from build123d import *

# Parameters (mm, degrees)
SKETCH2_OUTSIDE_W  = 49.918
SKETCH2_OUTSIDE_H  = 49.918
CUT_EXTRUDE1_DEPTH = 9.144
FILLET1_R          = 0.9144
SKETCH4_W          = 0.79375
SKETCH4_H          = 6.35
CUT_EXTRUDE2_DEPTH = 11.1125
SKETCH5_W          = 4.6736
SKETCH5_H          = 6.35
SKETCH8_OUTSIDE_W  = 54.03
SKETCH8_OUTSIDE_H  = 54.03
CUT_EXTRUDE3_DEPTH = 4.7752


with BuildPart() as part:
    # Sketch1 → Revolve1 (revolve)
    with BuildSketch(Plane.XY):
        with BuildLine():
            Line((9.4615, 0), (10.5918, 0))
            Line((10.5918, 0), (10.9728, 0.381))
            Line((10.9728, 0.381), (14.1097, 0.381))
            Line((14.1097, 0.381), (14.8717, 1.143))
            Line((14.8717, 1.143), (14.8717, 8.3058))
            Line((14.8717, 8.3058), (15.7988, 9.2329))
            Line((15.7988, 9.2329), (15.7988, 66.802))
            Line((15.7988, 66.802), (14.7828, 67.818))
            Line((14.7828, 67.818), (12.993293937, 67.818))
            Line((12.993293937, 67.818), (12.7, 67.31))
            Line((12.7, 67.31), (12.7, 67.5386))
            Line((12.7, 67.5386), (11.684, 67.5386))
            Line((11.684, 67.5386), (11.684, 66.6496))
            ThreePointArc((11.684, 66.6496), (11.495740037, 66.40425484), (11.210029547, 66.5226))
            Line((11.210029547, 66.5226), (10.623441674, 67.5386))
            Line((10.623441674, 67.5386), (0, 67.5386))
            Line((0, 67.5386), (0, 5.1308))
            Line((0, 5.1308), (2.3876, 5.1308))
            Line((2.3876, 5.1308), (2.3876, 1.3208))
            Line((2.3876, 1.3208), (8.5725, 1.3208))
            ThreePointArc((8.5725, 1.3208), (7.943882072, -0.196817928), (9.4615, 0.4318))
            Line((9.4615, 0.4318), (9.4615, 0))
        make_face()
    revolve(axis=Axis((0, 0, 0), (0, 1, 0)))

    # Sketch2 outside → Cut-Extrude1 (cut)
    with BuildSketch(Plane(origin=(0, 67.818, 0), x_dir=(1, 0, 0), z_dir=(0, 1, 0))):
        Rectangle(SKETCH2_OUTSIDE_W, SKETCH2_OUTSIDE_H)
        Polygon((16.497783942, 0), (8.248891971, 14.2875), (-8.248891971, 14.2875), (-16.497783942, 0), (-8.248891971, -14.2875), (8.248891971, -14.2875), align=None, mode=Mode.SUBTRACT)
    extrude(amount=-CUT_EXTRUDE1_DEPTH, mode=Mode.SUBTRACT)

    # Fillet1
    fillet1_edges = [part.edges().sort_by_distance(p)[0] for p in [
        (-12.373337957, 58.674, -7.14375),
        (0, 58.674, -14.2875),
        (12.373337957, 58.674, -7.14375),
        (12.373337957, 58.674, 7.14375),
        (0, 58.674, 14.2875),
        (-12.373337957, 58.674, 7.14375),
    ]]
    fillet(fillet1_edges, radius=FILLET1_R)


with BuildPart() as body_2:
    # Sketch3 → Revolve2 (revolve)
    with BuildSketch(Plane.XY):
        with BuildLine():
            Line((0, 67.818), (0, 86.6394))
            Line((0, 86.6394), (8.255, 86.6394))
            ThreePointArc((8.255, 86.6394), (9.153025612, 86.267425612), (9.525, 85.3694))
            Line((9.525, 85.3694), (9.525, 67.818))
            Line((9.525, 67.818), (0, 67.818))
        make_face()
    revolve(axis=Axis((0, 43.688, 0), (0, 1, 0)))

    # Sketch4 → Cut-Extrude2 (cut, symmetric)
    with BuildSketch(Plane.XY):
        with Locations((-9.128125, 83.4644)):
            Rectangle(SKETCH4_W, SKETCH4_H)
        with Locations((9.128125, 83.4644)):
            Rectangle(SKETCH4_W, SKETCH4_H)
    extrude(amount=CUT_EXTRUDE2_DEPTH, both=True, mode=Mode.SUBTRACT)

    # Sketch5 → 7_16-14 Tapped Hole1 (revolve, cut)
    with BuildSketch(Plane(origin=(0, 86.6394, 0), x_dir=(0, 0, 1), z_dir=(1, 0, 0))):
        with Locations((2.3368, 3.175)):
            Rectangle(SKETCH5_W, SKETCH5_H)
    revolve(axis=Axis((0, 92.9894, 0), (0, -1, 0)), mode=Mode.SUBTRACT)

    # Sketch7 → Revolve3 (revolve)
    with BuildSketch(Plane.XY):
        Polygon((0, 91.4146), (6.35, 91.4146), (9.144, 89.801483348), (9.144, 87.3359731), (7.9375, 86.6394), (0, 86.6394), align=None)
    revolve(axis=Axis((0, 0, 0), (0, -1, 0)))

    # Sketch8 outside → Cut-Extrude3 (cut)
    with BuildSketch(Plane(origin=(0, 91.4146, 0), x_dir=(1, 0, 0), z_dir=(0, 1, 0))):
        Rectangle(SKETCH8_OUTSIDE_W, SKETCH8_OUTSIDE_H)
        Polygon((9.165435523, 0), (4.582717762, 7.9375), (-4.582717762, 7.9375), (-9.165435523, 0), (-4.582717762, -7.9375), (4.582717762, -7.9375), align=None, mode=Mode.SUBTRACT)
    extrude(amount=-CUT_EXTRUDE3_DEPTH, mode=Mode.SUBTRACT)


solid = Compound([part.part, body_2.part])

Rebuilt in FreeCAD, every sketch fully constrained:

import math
import FreeCAD as App
import Part
import Sketcher
from FreeCAD import Vector
Q = App.Units.Quantity


def edges_at(feature, points):
    """Names of the edges that pass closest to the given points."""
    edges = feature.Shape.Edges
    near = lambda p: min(range(len(edges)), key=lambda i: edges[i].distToShape(Part.Vertex(*p))[0])
    return sorted({f"Edge{near(p) + 1}" for p in points})

doc = App.newDocument("Part")
body = doc.addObject("PartDesign::Body", "Body")

# Sketch on XY plane
sketch1 = doc.addObject("Sketcher::SketchObject", "Sketch")
body.addObject(sketch1)
sketch1.AttachmentSupport = (doc.XY_Plane, [""])
sketch1.MapMode = "FlatFace"
sketch1.addGeometry([
    Part.LineSegment(Vector(9.46, 0, 0), Vector(10.59, 0, 0)),  # 0
    Part.LineSegment(Vector(10.59, 0, 0), Vector(10.97, 0.38, 0)),  # 1
    Part.LineSegment(Vector(10.97, 0.38, 0), Vector(14.11, 0.38, 0)),  # 2
    Part.LineSegment(Vector(14.11, 0.38, 0), Vector(14.87, 1.14, 0)),  # 3
    Part.LineSegment(Vector(14.87, 1.14, 0), Vector(14.87, 8.31, 0)),  # 4
    Part.LineSegment(Vector(14.87, 8.31, 0), Vector(15.8, 9.23, 0)),  # 5
    Part.LineSegment(Vector(15.8, 9.23, 0), Vector(15.8, 66.8, 0)),  # 6
    Part.LineSegment(Vector(15.8, 66.8, 0), Vector(14.78, 67.82, 0)),  # 7
    Part.LineSegment(Vector(14.78, 67.82, 0), Vector(12.99, 67.82, 0)),  # 8
    Part.LineSegment(Vector(12.99, 67.82, 0), Vector(12.7, 67.31, 0)),  # 9
    Part.LineSegment(Vector(12.7, 67.31, 0), Vector(12.7, 67.54, 0)),  # 10
    Part.LineSegment(Vector(12.7, 67.54, 0), Vector(11.68, 67.54, 0)),  # 11
    Part.LineSegment(Vector(11.68, 67.54, 0), Vector(11.68, 66.65, 0)),  # 12
    Part.ArcOfCircle(Part.Circle(Vector(11.43, 66.65, 0), Vector(0, 0, 1), 0.25), math.radians(-150), math.radians(0)),  # 13
    Part.LineSegment(Vector(11.21, 66.52, 0), Vector(10.62, 67.54, 0)),  # 14
    Part.LineSegment(Vector(10.62, 67.54, 0), Vector(0, 67.54, 0)),  # 15
    Part.LineSegment(Vector(0, 67.54, 0), Vector(0, 5.13, 0)),  # 16
    Part.LineSegment(Vector(0, 5.13, 0), Vector(2.39, 5.13, 0)),  # 17
    Part.LineSegment(Vector(2.39, 5.13, 0), Vector(2.39, 1.32, 0)),  # 18
    Part.LineSegment(Vector(2.39, 1.32, 0), Vector(8.57, 1.32, 0)),  # 19
    Part.ArcOfCircle(Part.Circle(Vector(8.57, 0.43, 0), Vector(0, 0, 1), 0.89), math.radians(90), math.radians(360)),  # 20
    Part.LineSegment(Vector(9.46, 0.43, 0), Vector(9.46, 0, 0)),  # 21
], False)
sketch1.addConstraint([
    Sketcher.Constraint("Coincident", 0, 2, 1, 1),
    Sketcher.Constraint("Coincident", 1, 2, 2, 1),
    Sketcher.Constraint("Coincident", 2, 2, 3, 1),
    Sketcher.Constraint("Coincident", 3, 2, 4, 1),
    Sketcher.Constraint("Coincident", 4, 2, 5, 1),
    Sketcher.Constraint("Coincident", 5, 2, 6, 1),
    Sketcher.Constraint("Coincident", 6, 2, 7, 1),
    Sketcher.Constraint("Coincident", 7, 2, 8, 1),
    Sketcher.Constraint("Coincident", 8, 2, 9, 1),
    Sketcher.Constraint("Coincident", 9, 2, 10, 1),
    Sketcher.Constraint("Coincident", 10, 2, 11, 1),
    Sketcher.Constraint("Coincident", 11, 2, 12, 1),
    Sketcher.Constraint("Tangent", 12, 2, 13, 2),
    Sketcher.Constraint("Tangent", 13, 1, 14, 1),
    Sketcher.Constraint("Coincident", 14, 2, 15, 1),
    Sketcher.Constraint("Coincident", 15, 2, 16, 1),
    Sketcher.Constraint("Coincident", 16, 2, 17, 1),
    Sketcher.Constraint("Coincident", 17, 2, 18, 1),
    Sketcher.Constraint("Coincident", 18, 2, 19, 1),
    Sketcher.Constraint("Tangent", 19, 2, 20, 1),
    Sketcher.Constraint("Tangent", 20, 2, 21, 1),
    Sketcher.Constraint("Coincident", 21, 2, 0, 1),
    Sketcher.Constraint("Horizontal", 0),
    Sketcher.Constraint("Horizontal", 2),
    Sketcher.Constraint("Vertical", 4),
    Sketcher.Constraint("Vertical", 6),
    Sketcher.Constraint("Horizontal", 8),
    Sketcher.Constraint("Vertical", 10),
    Sketcher.Constraint("Horizontal", 11),
    Sketcher.Constraint("Vertical", 12),
    Sketcher.Constraint("Horizontal", 15),
    Sketcher.Constraint("Vertical", 16),
    Sketcher.Constraint("Horizontal", 17),
    Sketcher.Constraint("Vertical", 18),
    Sketcher.Constraint("Horizontal", 19),
    Sketcher.Constraint("Vertical", 21),
    Sketcher.Constraint("PointOnObject", 0, 2, -1),
    Sketcher.Constraint("PointOnObject", 15, 2, -2),
    Sketcher.Constraint("Parallel", 1, 3),
    Sketcher.Constraint("Parallel", 3, 5),
    Sketcher.Constraint("Perpendicular", 5, 7),
    Sketcher.Constraint("Horizontal", 11, 2, 14, 2),
    Sketcher.Constraint("Radius", 13, Q("0.01 in")),
    Sketcher.Constraint("Angle", 1, Q("45 deg")),
    Sketcher.Constraint("Angle", 9, Q("-120 deg")),
    Sketcher.Constraint("Angle", 14, Q("120 deg")),
    Sketcher.Constraint("Radius", 20, Q("0.035 in")),
    Sketcher.Constraint("DistanceX", 11, 2, 11, 1, Q("0.04 in")),
    Sketcher.Constraint("DistanceY", 18, 2, 18, 1, Q("0.15 in")),
    Sketcher.Constraint("DistanceX", -1, 1, 9, 2, Q("0.5 in")),
    Sketcher.Constraint("DistanceX", 17, 1, 17, 2, Q("0.094 in")),
    Sketcher.Constraint("DistanceY", 4, 1, 4, 2, Q("0.282 in")),
    Sketcher.Constraint("DistanceY", 10, 1, 10, 2, Q("0.009 in")),
    Sketcher.Constraint("DistanceY", 12, 2, 12, 1, Q("0.035 in")),
    Sketcher.Constraint("DistanceY", 16, 2, 16, 1, Q("2.457 in")),
    Sketcher.Constraint("DistanceY", 21, 2, 21, 1, Q("0.017 in")),
    Sketcher.Constraint("DistanceY", -1, 1, 6, 2, Q("2.63 in")),
    Sketcher.Constraint("DistanceY", -1, 1, 7, 2, Q("2.67 in")),
    Sketcher.Constraint("DistanceX", 2, 2, 3, 2, Q("0.03 in")),
    Sketcher.Constraint("DistanceY", 20, 3, 4, 2, Q("0.31 in")),
    Sketcher.Constraint("DistanceX", 1, 2, 5, 2, Q("0.19 in")),
    Sketcher.Constraint("DistanceX", 0, 1, 0, 2, Q("0.0445 in")),
    Sketcher.Constraint("DistanceX", 2, 1, 2, 2, Q("0.1235 in")),
    Sketcher.Constraint("DistanceX", 19, 1, 19, 2, Q("0.2435 in")),
])
revolution = doc.addObject("PartDesign::Revolution", "Revolution")
body.addObject(revolution)
revolution.Profile = sketch1
revolution.ReferenceAxis = (sketch1, ["V_Axis"])
revolution.Angle = 360

# Sketch on XZ plane
sketch2 = doc.addObject("Sketcher::SketchObject", "Sketch001")
body.addObject(sketch2)
sketch2.AttachmentSupport = (doc.XZ_Plane, [""])
sketch2.MapMode = "FlatFace"
sketch2.AttachmentOffset = App.Placement(Vector(0, 0, -2.67 * 25.4), App.Rotation())
sketch2.addGeometry([
    Part.LineSegment(Vector(-25, -25, 0), Vector(-25, 25, 0)),  # 0
    Part.LineSegment(Vector(-25, 25, 0), Vector(25, 25, 0)),  # 1
    Part.LineSegment(Vector(25, 25, 0), Vector(25, -25, 0)),  # 2
    Part.LineSegment(Vector(25, -25, 0), Vector(-25, -25, 0)),  # 3
    Part.LineSegment(Vector(8, -14, 0), Vector(16, 0, 0)),  # 4
    Part.LineSegment(Vector(16, 0, 0), Vector(8, 14, 0)),  # 5
    Part.LineSegment(Vector(8, 14, 0), Vector(-8, 14, 0)),  # 6
    Part.LineSegment(Vector(-8, 14, 0), Vector(-16, 0, 0)),  # 7
    Part.LineSegment(Vector(-16, 0, 0), Vector(-8, -14, 0)),  # 8
    Part.LineSegment(Vector(-8, -14, 0), Vector(8, -14, 0)),  # 9
], False)
sketch2.addConstraint([
    Sketcher.Constraint("Coincident", 0, 2, 1, 1),
    Sketcher.Constraint("Coincident", 1, 2, 2, 1),
    Sketcher.Constraint("Coincident", 2, 2, 3, 1),
    Sketcher.Constraint("Coincident", 3, 2, 0, 1),
    Sketcher.Constraint("Coincident", 4, 2, 5, 1),
    Sketcher.Constraint("Coincident", 5, 2, 6, 1),
    Sketcher.Constraint("Coincident", 6, 2, 7, 1),
    Sketcher.Constraint("Coincident", 7, 2, 8, 1),
    Sketcher.Constraint("Coincident", 8, 2, 9, 1),
    Sketcher.Constraint("Coincident", 9, 2, 4, 1),
    Sketcher.Constraint("Vertical", 0),
    Sketcher.Constraint("Horizontal", 1),
    Sketcher.Constraint("Vertical", 2),
    Sketcher.Constraint("Horizontal", 3),
    Sketcher.Constraint("Horizontal", 6),
    Sketcher.Constraint("Horizontal", 9),
    Sketcher.Constraint("Symmetric", 0, 2, 2, 2, -1, 1),
    Sketcher.Constraint("Symmetric", 4, 2, 7, 2, -1, 1),
    Sketcher.Constraint("Symmetric", 5, 2, 8, 2, -1, 1),
    Sketcher.Constraint("PointOnObject", 4, 2, -1),
    Sketcher.Constraint("Parallel", 4, 7),
    Sketcher.Constraint("Vertical", 6, 2, 8, 2),
    Sketcher.Constraint("Equal", 3, 0),
    Sketcher.Constraint("Angle", 4, Q("60 deg")),
    Sketcher.Constraint("DistanceY", -1, 1, 5, 2, Q("0.5625 in")),
    Sketcher.Constraint("DistanceX", 1, 1, 1, 2, Q("49.918 mm")),
    Sketcher.Constraint("DistanceX", 6, 2, 6, 1, Q("16.497784 mm")),
])
pocket1 = doc.addObject("PartDesign::Pocket", "Pocket")
body.addObject(pocket1)
pocket1.Profile = sketch2
pocket1.Length = Q("0.36 in")
pocket1.Reversed = True
doc.recompute()

fillet = doc.addObject("PartDesign::Fillet", "Fillet")
body.addObject(fillet)
fillet.Base = (pocket1, edges_at(pocket1, [
    (-12.373, 58.674, -7.144),
    (0, 58.674, -14.287),
    (12.373, 58.674, -7.144),
    (12.373, 58.674, 7.144),
    (0, 58.674, 14.287),
    (-12.373, 58.674, 7.144),
]))
fillet.Radius = Q("0.036 in")
body2 = doc.addObject("PartDesign::Body", "Body001")

# Sketch on XY plane
sketch3 = doc.addObject("Sketcher::SketchObject", "Sketch002")
body2.addObject(sketch3)
sketch3.AttachmentSupport = (doc.getObject("XY_Plane001"), [""])
sketch3.MapMode = "FlatFace"
sketch3.addGeometry([
    Part.LineSegment(Vector(0, 86.6, 0), Vector(0, 67.8, 0)),  # 0
    Part.LineSegment(Vector(0, 67.8, 0), Vector(9.5, 67.8, 0)),  # 1
    Part.LineSegment(Vector(9.5, 67.8, 0), Vector(9.5, 85.4, 0)),  # 2
    Part.ArcOfCircle(Part.Circle(Vector(8.3, 85.4, 0), Vector(0, 0, 1), 1.3), math.radians(0), math.radians(90)),  # 3
    Part.LineSegment(Vector(8.3, 86.6, 0), Vector(0, 86.6, 0)),  # 4
], False)
sketch3.addConstraint([
    Sketcher.Constraint("Coincident", 0, 2, 1, 1),
    Sketcher.Constraint("Coincident", 1, 2, 2, 1),
    Sketcher.Constraint("Tangent", 2, 2, 3, 1),
    Sketcher.Constraint("Tangent", 3, 2, 4, 1),
    Sketcher.Constraint("Coincident", 4, 2, 0, 1),
    Sketcher.Constraint("Vertical", 0),
    Sketcher.Constraint("Horizontal", 1),
    Sketcher.Constraint("Vertical", 2),
    Sketcher.Constraint("Horizontal", 4),
    Sketcher.Constraint("PointOnObject", 0, 2, -2),
    Sketcher.Constraint("Radius", 3, Q("0.05 in")),
    Sketcher.Constraint("DistanceX", 1, 1, 1, 2, Q("0.375 in")),
    Sketcher.Constraint("DistanceY", 0, 2, 0, 1, Q("0.741 in")),
    Sketcher.Constraint("DistanceY", -1, 1, 0, 2, Q("2.67 in")),
])
revolution2 = doc.addObject("PartDesign::Revolution", "Revolution001")
body2.addObject(revolution2)
revolution2.Profile = sketch3
revolution2.ReferenceAxis = (sketch3, ["V_Axis"])
revolution2.Angle = 360

# Sketch on XY plane
sketch4 = doc.addObject("Sketcher::SketchObject", "Sketch003")
body2.addObject(sketch4)
sketch4.AttachmentSupport = (doc.getObject("XY_Plane001"), [""])
sketch4.MapMode = "FlatFace"
sketch4.addGeometry([
    Part.LineSegment(Vector(-9.5, 86.6, 0), Vector(-9.5, 80.3, 0)),  # 0
    Part.LineSegment(Vector(-9.5, 80.3, 0), Vector(-8.7, 80.3, 0)),  # 1
    Part.LineSegment(Vector(-8.7, 80.3, 0), Vector(-8.7, 86.6, 0)),  # 2
    Part.LineSegment(Vector(-8.7, 86.6, 0), Vector(-9.5, 86.6, 0)),  # 3
    Part.LineSegment(Vector(8.7, 86.6, 0), Vector(8.7, 80.3, 0)),  # 4
    Part.LineSegment(Vector(8.7, 80.3, 0), Vector(9.5, 80.3, 0)),  # 5
    Part.LineSegment(Vector(9.5, 80.3, 0), Vector(9.5, 86.6, 0)),  # 6
    Part.LineSegment(Vector(9.5, 86.6, 0), Vector(8.7, 86.6, 0)),  # 7
], False)
sketch4.addConstraint([
    Sketcher.Constraint("Coincident", 0, 2, 1, 1),
    Sketcher.Constraint("Coincident", 1, 2, 2, 1),
    Sketcher.Constraint("Coincident", 2, 2, 3, 1),
    Sketcher.Constraint("Coincident", 3, 2, 0, 1),
    Sketcher.Constraint("Coincident", 4, 2, 5, 1),
    Sketcher.Constraint("Coincident", 5, 2, 6, 1),
    Sketcher.Constraint("Coincident", 6, 2, 7, 1),
    Sketcher.Constraint("Coincident", 7, 2, 4, 1),
    Sketcher.Constraint("Vertical", 0),
    Sketcher.Constraint("Horizontal", 1),
    Sketcher.Constraint("Vertical", 2),
    Sketcher.Constraint("Horizontal", 3),
    Sketcher.Constraint("Vertical", 4),
    Sketcher.Constraint("Horizontal", 5),
    Sketcher.Constraint("Vertical", 6),
    Sketcher.Constraint("Horizontal", 7),
    Sketcher.Constraint("Symmetric", 1, 2, 4, 2, -2),
    Sketcher.Constraint("Symmetric", 3, 2, 6, 2, -2),
    Sketcher.Constraint("DistanceY", 0, 2, 0, 1, Q("0.25 in")),
    Sketcher.Constraint("DistanceX", 1, 1, 1, 2, Q("0.03125 in")),
    Sketcher.Constraint("DistanceX", 0, 2, 5, 2, Q("0.75 in")),
    Sketcher.Constraint("DistanceY", -1, 1, 0, 2, Q("3.161 in")),
])
pocket2 = doc.addObject("PartDesign::Pocket", "Pocket001")
body2.addObject(pocket2)
pocket2.Profile = sketch4
pocket2.Length = Q("0.875 in")
pocket2.Midplane = True

# Sketch on YZ plane
sketch5 = doc.addObject("Sketcher::SketchObject", "Sketch004")
body2.addObject(sketch5)
sketch5.AttachmentSupport = (doc.getObject("YZ_Plane001"), [""])
sketch5.MapMode = "FlatFace"
sketch5.addGeometry([
    Part.LineSegment(Vector(80.3, 0, 0), Vector(86.6, 0, 0)),
    Part.LineSegment(Vector(86.6, 0, 0), Vector(86.6, 4.7, 0)),
    Part.LineSegment(Vector(86.6, 4.7, 0), Vector(80.3, 4.7, 0)),
    Part.LineSegment(Vector(80.3, 4.7, 0), Vector(80.3, 0, 0)),
], False)
sketch5.addConstraint([
    Sketcher.Constraint("Coincident", 0, 2, 1, 1),
    Sketcher.Constraint("Coincident", 1, 2, 2, 1),
    Sketcher.Constraint("Coincident", 2, 2, 3, 1),
    Sketcher.Constraint("Coincident", 3, 2, 0, 1),
    Sketcher.Constraint("Horizontal", 0),
    Sketcher.Constraint("Vertical", 1),
    Sketcher.Constraint("Horizontal", 2),
    Sketcher.Constraint("Vertical", 3),
    Sketcher.Constraint("PointOnObject", 0, 2, -1),
    Sketcher.Constraint("DistanceX", 0, 1, 0, 2, Q("0.25 in")),
    Sketcher.Constraint("DistanceY", 1, 1, 1, 2, Q("0.184 in")),
    Sketcher.Constraint("DistanceX", -1, 1, 0, 2, Q("3.411 in")),
])
groove = doc.addObject("PartDesign::Groove", "Groove")
body2.addObject(groove)
groove.Profile = sketch5
groove.ReferenceAxis = (sketch5, ["H_Axis"])
groove.Angle = 360

# Sketch on XY plane
sketch6 = doc.addObject("Sketcher::SketchObject", "Sketch005")
body2.addObject(sketch6)
sketch6.AttachmentSupport = (doc.getObject("XY_Plane001"), [""])
sketch6.MapMode = "FlatFace"
sketch6.addGeometry([
    Part.LineSegment(Vector(6.3, 91.4, 0), Vector(0, 91.4, 0)),  # 0
    Part.LineSegment(Vector(0, 91.4, 0), Vector(0, 86.6, 0)),  # 1
    Part.LineSegment(Vector(0, 86.6, 0), Vector(7.9, 86.6, 0)),  # 2
    Part.LineSegment(Vector(7.9, 86.6, 0), Vector(9.1, 87.3, 0)),  # 3
    Part.LineSegment(Vector(9.1, 87.3, 0), Vector(9.1, 89.8, 0)),  # 4
    Part.LineSegment(Vector(9.1, 89.8, 0), Vector(6.3, 91.4, 0)),  # 5
], False)
sketch6.addConstraint([
    Sketcher.Constraint("Coincident", 0, 2, 1, 1),
    Sketcher.Constraint("Coincident", 1, 2, 2, 1),
    Sketcher.Constraint("Coincident", 2, 2, 3, 1),
    Sketcher.Constraint("Coincident", 3, 2, 4, 1),
    Sketcher.Constraint("Coincident", 4, 2, 5, 1),
    Sketcher.Constraint("Coincident", 5, 2, 0, 1),
    Sketcher.Constraint("Horizontal", 0),
    Sketcher.Constraint("Vertical", 1),
    Sketcher.Constraint("Horizontal", 2),
    Sketcher.Constraint("Vertical", 4),
    Sketcher.Constraint("PointOnObject", 0, 2, -2),
    Sketcher.Constraint("Angle", 3, Q("30 deg")),
    Sketcher.Constraint("Angle", 5, Q("150 deg")),
    Sketcher.Constraint("DistanceX", 0, 2, 0, 1, Q("0.25 in")),
    Sketcher.Constraint("DistanceX", 2, 1, 2, 2, Q("0.3125 in")),
    Sketcher.Constraint("DistanceY", 1, 2, 1, 1, Q("0.188 in")),
    Sketcher.Constraint("DistanceX", -1, 1, 3, 2, Q("0.36 in")),
    Sketcher.Constraint("DistanceY", -1, 1, 0, 2, Q("3.599 in")),
])
revolution3 = doc.addObject("PartDesign::Revolution", "Revolution002")
body2.addObject(revolution3)
revolution3.Profile = sketch6
revolution3.ReferenceAxis = (sketch6, ["V_Axis"])
revolution3.Angle = 360

# Sketch on XZ plane
sketch7 = doc.addObject("Sketcher::SketchObject", "Sketch006")
body2.addObject(sketch7)
sketch7.AttachmentSupport = (doc.getObject("XZ_Plane001"), [""])
sketch7.MapMode = "FlatFace"
sketch7.AttachmentOffset = App.Placement(Vector(0, 0, -3.599 * 25.4), App.Rotation())
sketch7.addGeometry([
    Part.LineSegment(Vector(-27, -27, 0), Vector(-27, 27, 0)),  # 0
    Part.LineSegment(Vector(-27, 27, 0), Vector(27, 27, 0)),  # 1
    Part.LineSegment(Vector(27, 27, 0), Vector(27, -27, 0)),  # 2
    Part.LineSegment(Vector(27, -27, 0), Vector(-27, -27, 0)),  # 3
    Part.LineSegment(Vector(5, -8, 0), Vector(9, 0, 0)),  # 4
    Part.LineSegment(Vector(9, 0, 0), Vector(5, 8, 0)),  # 5
    Part.LineSegment(Vector(5, 8, 0), Vector(-5, 8, 0)),  # 6
    Part.LineSegment(Vector(-5, 8, 0), Vector(-9, 0, 0)),  # 7
    Part.LineSegment(Vector(-9, 0, 0), Vector(-5, -8, 0)),  # 8
    Part.LineSegment(Vector(-5, -8, 0), Vector(5, -8, 0)),  # 9
], False)
sketch7.addConstraint([
    Sketcher.Constraint("Coincident", 0, 2, 1, 1),
    Sketcher.Constraint("Coincident", 1, 2, 2, 1),
    Sketcher.Constraint("Coincident", 2, 2, 3, 1),
    Sketcher.Constraint("Coincident", 3, 2, 0, 1),
    Sketcher.Constraint("Coincident", 4, 2, 5, 1),
    Sketcher.Constraint("Coincident", 5, 2, 6, 1),
    Sketcher.Constraint("Coincident", 6, 2, 7, 1),
    Sketcher.Constraint("Coincident", 7, 2, 8, 1),
    Sketcher.Constraint("Coincident", 8, 2, 9, 1),
    Sketcher.Constraint("Coincident", 9, 2, 4, 1),
    Sketcher.Constraint("Vertical", 0),
    Sketcher.Constraint("Horizontal", 1),
    Sketcher.Constraint("Vertical", 2),
    Sketcher.Constraint("Horizontal", 3),
    Sketcher.Constraint("Horizontal", 6),
    Sketcher.Constraint("Horizontal", 9),
    Sketcher.Constraint("Symmetric", 0, 2, 2, 2, -1, 1),
    Sketcher.Constraint("Symmetric", 4, 2, 7, 2, -1, 1),
    Sketcher.Constraint("Symmetric", 5, 2, 8, 2, -1, 1),
    Sketcher.Constraint("PointOnObject", 4, 2, -1),
    Sketcher.Constraint("Parallel", 4, 7),
    Sketcher.Constraint("Vertical", 6, 2, 8, 2),
    Sketcher.Constraint("Equal", 3, 0),
    Sketcher.Constraint("Angle", 4, Q("60 deg")),
    Sketcher.Constraint("DistanceY", -1, 1, 5, 2, Q("0.3125 in")),
    Sketcher.Constraint("DistanceX", 1, 1, 1, 2, Q("54.03 mm")),
    Sketcher.Constraint("DistanceX", 6, 2, 6, 1, Q("9.165436 mm")),
])
pocket3 = doc.addObject("PartDesign::Pocket", "Pocket002")
body2.addObject(pocket3)
pocket3.Profile = sketch7
pocket3.Length = Q("0.188 in")
pocket3.Reversed = True

doc.recompute()
